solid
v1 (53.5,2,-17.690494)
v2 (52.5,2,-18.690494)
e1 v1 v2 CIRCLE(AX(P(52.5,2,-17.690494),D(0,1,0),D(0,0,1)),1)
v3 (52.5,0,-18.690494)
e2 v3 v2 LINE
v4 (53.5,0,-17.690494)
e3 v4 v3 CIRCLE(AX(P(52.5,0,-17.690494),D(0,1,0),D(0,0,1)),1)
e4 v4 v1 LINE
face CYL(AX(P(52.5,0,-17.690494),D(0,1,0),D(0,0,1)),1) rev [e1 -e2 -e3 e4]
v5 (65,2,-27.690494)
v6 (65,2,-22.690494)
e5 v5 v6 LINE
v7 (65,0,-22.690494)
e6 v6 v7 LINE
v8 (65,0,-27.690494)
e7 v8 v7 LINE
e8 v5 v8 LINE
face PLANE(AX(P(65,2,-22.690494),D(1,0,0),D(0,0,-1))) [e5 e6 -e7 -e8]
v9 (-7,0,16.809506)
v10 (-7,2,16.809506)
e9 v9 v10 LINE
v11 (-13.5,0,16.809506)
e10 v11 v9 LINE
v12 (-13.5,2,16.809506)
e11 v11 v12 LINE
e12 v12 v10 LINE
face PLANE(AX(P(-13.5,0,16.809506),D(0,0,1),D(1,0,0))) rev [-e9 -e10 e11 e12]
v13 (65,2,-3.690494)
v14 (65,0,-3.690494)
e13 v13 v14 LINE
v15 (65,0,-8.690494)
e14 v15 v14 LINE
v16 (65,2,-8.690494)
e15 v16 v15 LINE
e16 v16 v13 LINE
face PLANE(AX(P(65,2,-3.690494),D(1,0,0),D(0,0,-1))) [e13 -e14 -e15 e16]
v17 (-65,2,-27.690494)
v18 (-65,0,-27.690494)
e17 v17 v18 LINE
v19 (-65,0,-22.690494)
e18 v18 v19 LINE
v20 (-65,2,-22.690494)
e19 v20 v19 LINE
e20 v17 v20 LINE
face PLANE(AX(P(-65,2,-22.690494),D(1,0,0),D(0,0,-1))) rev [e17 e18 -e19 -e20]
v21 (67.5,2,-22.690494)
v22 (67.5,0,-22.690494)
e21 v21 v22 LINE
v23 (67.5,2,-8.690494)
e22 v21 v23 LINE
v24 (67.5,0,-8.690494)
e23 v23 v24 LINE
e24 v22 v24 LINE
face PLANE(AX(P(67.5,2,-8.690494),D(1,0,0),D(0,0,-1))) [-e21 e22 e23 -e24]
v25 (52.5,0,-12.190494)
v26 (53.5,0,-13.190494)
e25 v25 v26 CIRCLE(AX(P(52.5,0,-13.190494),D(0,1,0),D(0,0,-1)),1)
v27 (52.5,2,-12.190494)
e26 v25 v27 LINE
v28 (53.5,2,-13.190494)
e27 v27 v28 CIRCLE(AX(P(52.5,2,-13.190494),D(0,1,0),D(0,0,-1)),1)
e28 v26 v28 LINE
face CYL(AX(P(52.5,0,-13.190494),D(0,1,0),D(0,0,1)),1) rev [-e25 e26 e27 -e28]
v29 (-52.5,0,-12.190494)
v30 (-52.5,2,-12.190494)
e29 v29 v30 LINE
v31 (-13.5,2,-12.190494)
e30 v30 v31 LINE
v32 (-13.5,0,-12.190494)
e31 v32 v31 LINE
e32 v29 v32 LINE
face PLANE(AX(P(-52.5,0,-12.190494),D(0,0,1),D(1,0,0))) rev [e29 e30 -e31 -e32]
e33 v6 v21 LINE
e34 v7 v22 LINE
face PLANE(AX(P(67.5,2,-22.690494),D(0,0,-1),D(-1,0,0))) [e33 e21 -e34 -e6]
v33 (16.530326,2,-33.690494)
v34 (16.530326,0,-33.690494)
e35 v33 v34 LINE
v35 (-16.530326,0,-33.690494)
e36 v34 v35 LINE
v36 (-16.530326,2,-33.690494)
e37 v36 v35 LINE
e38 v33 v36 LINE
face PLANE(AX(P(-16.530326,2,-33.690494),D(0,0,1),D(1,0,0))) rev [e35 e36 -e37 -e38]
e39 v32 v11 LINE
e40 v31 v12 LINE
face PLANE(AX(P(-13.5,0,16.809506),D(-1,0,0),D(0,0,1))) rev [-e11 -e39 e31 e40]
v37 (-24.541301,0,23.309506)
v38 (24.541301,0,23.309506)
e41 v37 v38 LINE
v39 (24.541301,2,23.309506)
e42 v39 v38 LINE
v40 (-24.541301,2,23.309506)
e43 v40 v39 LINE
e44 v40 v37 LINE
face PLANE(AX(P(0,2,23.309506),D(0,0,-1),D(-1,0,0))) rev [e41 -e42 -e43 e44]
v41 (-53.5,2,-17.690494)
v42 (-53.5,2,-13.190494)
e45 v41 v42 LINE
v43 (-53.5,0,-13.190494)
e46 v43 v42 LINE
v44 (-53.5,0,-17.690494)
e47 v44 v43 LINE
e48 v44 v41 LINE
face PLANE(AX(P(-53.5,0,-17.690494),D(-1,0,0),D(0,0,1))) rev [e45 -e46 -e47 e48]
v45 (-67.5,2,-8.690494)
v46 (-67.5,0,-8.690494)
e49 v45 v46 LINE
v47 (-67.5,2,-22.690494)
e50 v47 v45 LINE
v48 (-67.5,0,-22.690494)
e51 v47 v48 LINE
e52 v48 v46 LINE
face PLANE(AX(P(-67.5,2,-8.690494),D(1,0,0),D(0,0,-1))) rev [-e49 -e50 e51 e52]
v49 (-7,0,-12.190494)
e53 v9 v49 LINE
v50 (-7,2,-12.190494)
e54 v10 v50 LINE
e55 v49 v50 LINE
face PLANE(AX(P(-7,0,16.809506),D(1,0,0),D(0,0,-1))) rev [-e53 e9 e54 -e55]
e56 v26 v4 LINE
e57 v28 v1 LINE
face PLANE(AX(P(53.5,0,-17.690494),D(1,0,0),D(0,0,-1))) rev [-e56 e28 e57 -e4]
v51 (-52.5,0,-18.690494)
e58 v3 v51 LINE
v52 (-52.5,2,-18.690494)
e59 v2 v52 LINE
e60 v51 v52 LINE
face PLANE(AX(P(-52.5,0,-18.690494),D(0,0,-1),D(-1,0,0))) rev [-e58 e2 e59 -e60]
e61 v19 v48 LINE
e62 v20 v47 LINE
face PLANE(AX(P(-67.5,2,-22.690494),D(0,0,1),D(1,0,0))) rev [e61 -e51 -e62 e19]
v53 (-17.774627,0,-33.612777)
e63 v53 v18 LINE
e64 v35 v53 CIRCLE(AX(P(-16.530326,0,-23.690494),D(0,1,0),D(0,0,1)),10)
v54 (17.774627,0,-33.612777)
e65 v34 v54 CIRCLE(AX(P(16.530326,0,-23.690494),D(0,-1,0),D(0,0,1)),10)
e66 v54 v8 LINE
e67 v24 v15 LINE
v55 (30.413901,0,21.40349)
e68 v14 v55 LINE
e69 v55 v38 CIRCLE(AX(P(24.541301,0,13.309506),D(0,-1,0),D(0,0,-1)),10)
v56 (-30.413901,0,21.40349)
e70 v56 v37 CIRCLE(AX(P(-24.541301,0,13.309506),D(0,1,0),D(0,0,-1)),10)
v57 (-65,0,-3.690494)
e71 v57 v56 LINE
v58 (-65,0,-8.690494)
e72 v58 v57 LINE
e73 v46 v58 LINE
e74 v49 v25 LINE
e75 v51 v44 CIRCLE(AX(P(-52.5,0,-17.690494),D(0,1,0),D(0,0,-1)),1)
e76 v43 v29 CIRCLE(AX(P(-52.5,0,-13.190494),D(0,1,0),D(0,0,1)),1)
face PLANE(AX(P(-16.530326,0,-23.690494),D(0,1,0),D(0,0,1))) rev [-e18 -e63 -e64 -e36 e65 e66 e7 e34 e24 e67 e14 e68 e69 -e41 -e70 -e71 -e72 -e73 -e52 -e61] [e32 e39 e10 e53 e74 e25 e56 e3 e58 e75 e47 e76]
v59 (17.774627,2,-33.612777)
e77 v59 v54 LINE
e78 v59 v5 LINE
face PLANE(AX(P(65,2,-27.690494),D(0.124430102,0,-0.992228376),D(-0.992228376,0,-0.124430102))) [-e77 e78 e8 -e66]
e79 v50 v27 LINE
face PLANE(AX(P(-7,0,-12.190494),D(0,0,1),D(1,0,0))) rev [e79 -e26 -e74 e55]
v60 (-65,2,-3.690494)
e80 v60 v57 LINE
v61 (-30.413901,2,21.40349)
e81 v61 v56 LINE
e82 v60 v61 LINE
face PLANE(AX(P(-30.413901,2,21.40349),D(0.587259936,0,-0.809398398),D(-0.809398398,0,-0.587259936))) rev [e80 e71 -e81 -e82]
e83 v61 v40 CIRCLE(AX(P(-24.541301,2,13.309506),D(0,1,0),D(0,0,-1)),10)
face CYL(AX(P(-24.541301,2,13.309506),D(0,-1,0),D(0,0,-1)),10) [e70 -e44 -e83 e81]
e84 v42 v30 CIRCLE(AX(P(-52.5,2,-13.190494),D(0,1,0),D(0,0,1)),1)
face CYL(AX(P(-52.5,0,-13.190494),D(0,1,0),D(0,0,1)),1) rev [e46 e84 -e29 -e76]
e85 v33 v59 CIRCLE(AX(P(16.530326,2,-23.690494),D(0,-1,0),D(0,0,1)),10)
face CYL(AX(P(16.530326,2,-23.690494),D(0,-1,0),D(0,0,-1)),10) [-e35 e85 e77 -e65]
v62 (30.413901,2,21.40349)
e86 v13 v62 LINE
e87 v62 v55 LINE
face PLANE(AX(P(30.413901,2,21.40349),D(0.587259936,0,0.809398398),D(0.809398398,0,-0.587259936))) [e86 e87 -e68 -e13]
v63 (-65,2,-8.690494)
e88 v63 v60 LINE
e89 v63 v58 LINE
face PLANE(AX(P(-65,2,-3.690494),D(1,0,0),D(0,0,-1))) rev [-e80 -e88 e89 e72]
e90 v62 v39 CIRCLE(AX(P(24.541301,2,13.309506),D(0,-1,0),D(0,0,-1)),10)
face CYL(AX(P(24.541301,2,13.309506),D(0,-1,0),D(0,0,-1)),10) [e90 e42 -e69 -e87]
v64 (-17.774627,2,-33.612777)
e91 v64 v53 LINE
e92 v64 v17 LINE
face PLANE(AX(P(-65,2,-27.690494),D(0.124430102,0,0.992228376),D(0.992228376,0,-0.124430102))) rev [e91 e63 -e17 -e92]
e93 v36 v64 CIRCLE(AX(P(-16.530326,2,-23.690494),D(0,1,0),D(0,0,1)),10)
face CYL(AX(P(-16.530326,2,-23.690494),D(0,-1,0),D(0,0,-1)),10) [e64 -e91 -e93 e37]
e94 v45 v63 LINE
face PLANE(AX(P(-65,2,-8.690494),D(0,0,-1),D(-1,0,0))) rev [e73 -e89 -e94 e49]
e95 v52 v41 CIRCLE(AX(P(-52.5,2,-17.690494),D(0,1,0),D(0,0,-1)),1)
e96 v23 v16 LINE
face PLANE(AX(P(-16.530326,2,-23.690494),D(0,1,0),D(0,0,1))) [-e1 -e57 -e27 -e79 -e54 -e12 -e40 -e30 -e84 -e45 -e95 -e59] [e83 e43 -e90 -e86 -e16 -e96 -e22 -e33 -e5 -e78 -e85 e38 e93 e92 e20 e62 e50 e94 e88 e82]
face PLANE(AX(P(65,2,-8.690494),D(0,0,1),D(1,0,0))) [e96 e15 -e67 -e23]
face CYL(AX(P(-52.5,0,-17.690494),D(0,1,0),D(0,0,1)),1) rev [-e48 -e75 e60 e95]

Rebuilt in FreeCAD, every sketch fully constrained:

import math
import FreeCAD as App
import Part
import Sketcher

doc = App.newDocument("Part")
body = doc.addObject("PartDesign::Body", "Body")

# Sketch on XZ plane
sketch1 = body.newObject("Sketcher::SketchObject", "Sketch")
sketch1.AttachmentSupport = (doc.getObject("XZ_Plane"), [""])
sketch1.MapMode = "FlatFace"
sketch1.addGeometry(Part.LineSegment(App.Vector(-17.8, -33.6, 0), App.Vector(-65, -27.7, 0)), False)
sketch1.addGeometry(Part.LineSegment(App.Vector(-65, -27.7, 0), App.Vector(-65, -22.7, 0)), False)
sketch1.addGeometry(Part.LineSegment(App.Vector(-65, -22.7, 0), App.Vector(-67.5, -22.7, 0)), False)
sketch1.addGeometry(Part.LineSegment(App.Vector(-67.5, -22.7, 0), App.Vector(-67.5, -8.7, 0)), False)
sketch1.addGeometry(Part.LineSegment(App.Vector(-67.5, -8.7, 0), App.Vector(-65, -8.7, 0)), False)
sketch1.addGeometry(Part.LineSegment(App.Vector(-65, -8.7, 0), App.Vector(-65, -3.7, 0)), False)
sketch1.addGeometry(Part.LineSegment(App.Vector(-65, -3.7, 0), App.Vector(-30.4, 21.4, 0)), False)
sketch1.addGeometry(Part.ArcOfCircle(Part.Circle(App.Vector(-24.5, 13.3, 0), App.Vector(0, 0, 1), 10), math.radians(90), math.radians(126)), False)
sketch1.addGeometry(Part.LineSegment(App.Vector(-24.5, 23.3, 0), App.Vector(0, 23.3, 0)), False)
sketch1.addGeometry(Part.LineSegment(App.Vector(0, 23.3, 0), App.Vector(0, -33.7, 0)), False)
sketch1.addGeometry(Part.LineSegment(App.Vector(0, -33.7, 0), App.Vector(-16.5, -33.7, 0)), False)
sketch1.addGeometry(Part.ArcOfCircle(Part.Circle(App.Vector(-16.5, -23.7, 0), App.Vector(0, 0, 1), 10), math.radians(-97.15), math.radians(-90)), False)
sketch1.addConstraint(Sketcher.Constraint("Coincident", 0, 2, 1, 1))
sketch1.addConstraint(Sketcher.Constraint("Coincident", 1, 2, 2, 1))
sketch1.addConstraint(Sketcher.Constraint("Coincident", 2, 2, 3, 1))
sketch1.addConstraint(Sketcher.Constraint("Coincident", 3, 2, 4, 1))
sketch1.addConstraint(Sketcher.Constraint("Coincident", 4, 2, 5, 1))
sketch1.addConstraint(Sketcher.Constraint("Coincident", 5, 2, 6, 1))
sketch1.addConstraint(Sketcher.Constraint("Tangent", 6, 2, 7, 2))
sketch1.addConstraint(Sketcher.Constraint("Tangent", 7, 1, 8, 1))
sketch1.addConstraint(Sketcher.Constraint("Coincident", 8, 2, 9, 1))
sketch1.addConstraint(Sketcher.Constraint("Coincident", 9, 2, 10, 1))
sketch1.addConstraint(Sketcher.Constraint("Tangent", 10, 2, 11, 2))
sketch1.addConstraint(Sketcher.Constraint("Tangent", 11, 1, 0, 1))
sketch1.addConstraint(Sketcher.Constraint("Vertical", 1))
sketch1.addConstraint(Sketcher.Constraint("Horizontal", 2))
sketch1.addConstraint(Sketcher.Constraint("Vertical", 3))
sketch1.addConstraint(Sketcher.Constraint("Horizontal", 4))
sketch1.addConstraint(Sketcher.Constraint("Vertical", 5))
sketch1.addConstraint(Sketcher.Constraint("Horizontal", 8))
sketch1.addConstraint(Sketcher.Constraint("Vertical", 9))
sketch1.addConstraint(Sketcher.Constraint("Horizontal", 10))
sketch1.addConstraint(Sketcher.Constraint("Equal", 7, 11))
sketch1.addConstraint(Sketcher.Constraint("PointOnObject", 8, 2, -2))
sketch1.addConstraint(Sketcher.Constraint("Vertical", 1, 2, 4, 2))
sketch1.addConstraint(Sketcher.Constraint("Equal", 1, 5))
sketch1.addConstraint(Sketcher.Constraint("Radius", 7, 10.0))
sketch1.addConstraint(Sketcher.Constraint("DistanceY", 1, 1, 1, 2, 5.0))
sketch1.addConstraint(Sketcher.Constraint("DistanceY", 3, 1, 3, 2, 14.0))
sketch1.addConstraint(Sketcher.Constraint("DistanceY", 9, 2, 9, 1, 57.0))
sketch1.addConstraint(Sketcher.Constraint("DistanceX", 2, 2, 2, 1, 2.5))
sketch1.addConstraint(Sketcher.Constraint("DistanceX", 0, 2, -1, 1, 65.0))
sketch1.addConstraint(Sketcher.Constraint("DistanceY", 0, 2, 11, 3, 4.0))
sketch1.addConstraint(Sketcher.Constraint("DistanceX", 8, 1, 8, 2, 24.541301))
sketch1.addConstraint(Sketcher.Constraint("DistanceX", 10, 2, 10, 1, 16.530326))
sketch1.addConstraint(Sketcher.Constraint("DistanceY", -1, 1, 6, 2, 21.40349))
pad1 = body.newObject("PartDesign::Pad", "Pad")
pad1.Profile = sketch1
pad1.Length = 2
pad1.Reversed = True
doc.recompute()

mirrored = body.newObject("PartDesign::Mirrored", "Mirrored")
mirrored.Originals = [pad1]
mirrored.MirrorPlane = (doc.getObject("YZ_Plane"), [""])
body.Tip = mirrored

# Sketch on XZ plane
sketch2 = body.newObject("Sketcher::SketchObject", "Sketch001")
sketch2.AttachmentSupport = (doc.getObject("XZ_Plane"), [""])
sketch2.MapMode = "FlatFace"
sketch2.AttachmentOffset = App.Placement(App.Vector(0, 0, -2), App.Rotation())
sketch2.addGeometry(Part.LineSegment(App.Vector(52.5, -18.7, 0), App.Vector(-52.5, -18.7, 0)), False)
sketch2.addGeometry(Part.ArcOfCircle(Part.Circle(App.Vector(-52.5, -17.7, 0), App.Vector(0, 0, 1), 1), math.radians(-180), math.radians(-90)), False)
sketch2.addGeometry(Part.LineSegment(App.Vector(-53.5, -17.7, 0), App.Vector(-53.5, -13.2, 0)), False)
sketch2.addGeometry(Part.ArcOfCircle(Part.Circle(App.Vector(-52.5, -13.2, 0), App.Vector(0, 0, 1), 1), math.radians(90), math.radians(180)), False)
sketch2.addGeometry(Part.LineSegment(App.Vector(-52.5, -12.2, 0), App.Vector(-13.5, -12.2, 0)), False)
sketch2.addGeometry(Part.LineSegment(App.Vector(-13.5, -12.2, 0), App.Vector(-13.5, 16.8, 0)), False)
sketch2.addGeometry(Part.LineSegment(App.Vector(-13.5, 16.8, 0), App.Vector(-7, 16.8, 0)), False)
sketch2.addGeometry(Part.LineSegment(App.Vector(-7, 16.8, 0), App.Vector(-7, -12.2, 0)), False)
sketch2.addGeometry(Part.LineSegment(App.Vector(-7, -12.2, 0), App.Vector(52.5, -12.2, 0)), False)
sketch2.addGeometry(Part.ArcOfCircle(Part.Circle(App.Vector(52.5, -13.2, 0), App.Vector(0, 0, 1), 1), math.radians(0), math.radians(90)), False)
sketch2.addGeometry(Part.LineSegment(App.Vector(53.5, -13.2, 0), App.Vector(53.5, -17.7, 0)), False)
sketch2.addGeometry(Part.ArcOfCircle(Part.Circle(App.Vector(52.5, -17.7, 0), App.Vector(0, 0, 1), 1), math.radians(-90), math.radians(0)), False)
sketch2.addConstraint(Sketcher.Constraint("Tangent", 0, 2, 1, 2))
sketch2.addConstraint(Sketcher.Constraint("Tangent", 1, 1, 2, 1))
sketch2.addConstraint(Sketcher.Constraint("Tangent", 2, 2, 3, 2))
sketch2.addConstraint(Sketcher.Constraint("Tangent", 3, 1, 4, 1))
sketch2.addConstraint(Sketcher.Constraint("Coincident", 4, 2, 5, 1))
sketch2.addConstraint(Sketcher.Constraint("Coincident", 5, 2, 6, 1))
sketch2.addConstraint(Sketcher.Constraint("Coincident", 6, 2, 7, 1))
sketch2.addConstraint(Sketcher.Constraint("Coincident", 7, 2, 8, 1))
sketch2.addConstraint(Sketcher.Constraint("Tangent", 8, 2, 9, 2))
sketch2.addConstraint(Sketcher.Constraint("Tangent", 9, 1, 10, 1))
sketch2.addConstraint(Sketcher.Constraint("Tangent", 10, 2, 11, 2))
sketch2.addConstraint(Sketcher.Constraint("Tangent", 11, 1, 0, 1))
sketch2.addConstraint(Sketcher.Constraint("Horizontal", 0))
sketch2.addConstraint(Sketcher.Constraint("Vertical", 2))
sketch2.addConstraint(Sketcher.Constraint("Horizontal", 4))
sketch2.addConstraint(Sketcher.Constraint("Vertical", 5))
sketch2.addConstraint(Sketcher.Constraint("Horizontal", 6))
sketch2.addConstraint(Sketcher.Constraint("Vertical", 7))
sketch2.addConstraint(Sketcher.Constraint("Horizontal", 8))
sketch2.addConstraint(Sketcher.Constraint("Vertical", 10))
sketch2.addConstraint(Sketcher.Constraint("Equal", 1, 3))
sketch2.addConstraint(Sketcher.Constraint("Equal", 3, 9))
sketch2.addConstraint(Sketcher.Constraint("Equal", 9, 11))
sketch2.addConstraint(Sketcher.Constraint("Symmetric", 3, 3, 9, 3, -2))
sketch2.addConstraint(Sketcher.Constraint("Radius", 1, 1.0))
sketch2.addConstraint(Sketcher.Constraint("DistanceX", 0, 2, 0, 1, 105.0))
sketch2.addConstraint(Sketcher.Constraint("DistanceX", 4, 1, 4, 2, 39.0))
sketch2.addConstraint(Sketcher.Constraint("DistanceY", 5, 1, 5, 2, 29.0))
sketch2.addConstraint(Sketcher.Constraint("DistanceX", 6, 1, 6, 2, 6.5))
sketch2.addConstraint(Sketcher.Constraint("DistanceY", 2, 1, 2, 2, 4.5))
sketch2.addConstraint(Sketcher.Constraint("DistanceY", 1, 3, -1, 1, 17.690494))
pocket1 = body.newObject("PartDesign::Pocket", "Pocket")
pocket1.Profile = sketch2
pocket1.Type = "ThroughAll"
pocket1.Reversed = True

doc.recompute()
